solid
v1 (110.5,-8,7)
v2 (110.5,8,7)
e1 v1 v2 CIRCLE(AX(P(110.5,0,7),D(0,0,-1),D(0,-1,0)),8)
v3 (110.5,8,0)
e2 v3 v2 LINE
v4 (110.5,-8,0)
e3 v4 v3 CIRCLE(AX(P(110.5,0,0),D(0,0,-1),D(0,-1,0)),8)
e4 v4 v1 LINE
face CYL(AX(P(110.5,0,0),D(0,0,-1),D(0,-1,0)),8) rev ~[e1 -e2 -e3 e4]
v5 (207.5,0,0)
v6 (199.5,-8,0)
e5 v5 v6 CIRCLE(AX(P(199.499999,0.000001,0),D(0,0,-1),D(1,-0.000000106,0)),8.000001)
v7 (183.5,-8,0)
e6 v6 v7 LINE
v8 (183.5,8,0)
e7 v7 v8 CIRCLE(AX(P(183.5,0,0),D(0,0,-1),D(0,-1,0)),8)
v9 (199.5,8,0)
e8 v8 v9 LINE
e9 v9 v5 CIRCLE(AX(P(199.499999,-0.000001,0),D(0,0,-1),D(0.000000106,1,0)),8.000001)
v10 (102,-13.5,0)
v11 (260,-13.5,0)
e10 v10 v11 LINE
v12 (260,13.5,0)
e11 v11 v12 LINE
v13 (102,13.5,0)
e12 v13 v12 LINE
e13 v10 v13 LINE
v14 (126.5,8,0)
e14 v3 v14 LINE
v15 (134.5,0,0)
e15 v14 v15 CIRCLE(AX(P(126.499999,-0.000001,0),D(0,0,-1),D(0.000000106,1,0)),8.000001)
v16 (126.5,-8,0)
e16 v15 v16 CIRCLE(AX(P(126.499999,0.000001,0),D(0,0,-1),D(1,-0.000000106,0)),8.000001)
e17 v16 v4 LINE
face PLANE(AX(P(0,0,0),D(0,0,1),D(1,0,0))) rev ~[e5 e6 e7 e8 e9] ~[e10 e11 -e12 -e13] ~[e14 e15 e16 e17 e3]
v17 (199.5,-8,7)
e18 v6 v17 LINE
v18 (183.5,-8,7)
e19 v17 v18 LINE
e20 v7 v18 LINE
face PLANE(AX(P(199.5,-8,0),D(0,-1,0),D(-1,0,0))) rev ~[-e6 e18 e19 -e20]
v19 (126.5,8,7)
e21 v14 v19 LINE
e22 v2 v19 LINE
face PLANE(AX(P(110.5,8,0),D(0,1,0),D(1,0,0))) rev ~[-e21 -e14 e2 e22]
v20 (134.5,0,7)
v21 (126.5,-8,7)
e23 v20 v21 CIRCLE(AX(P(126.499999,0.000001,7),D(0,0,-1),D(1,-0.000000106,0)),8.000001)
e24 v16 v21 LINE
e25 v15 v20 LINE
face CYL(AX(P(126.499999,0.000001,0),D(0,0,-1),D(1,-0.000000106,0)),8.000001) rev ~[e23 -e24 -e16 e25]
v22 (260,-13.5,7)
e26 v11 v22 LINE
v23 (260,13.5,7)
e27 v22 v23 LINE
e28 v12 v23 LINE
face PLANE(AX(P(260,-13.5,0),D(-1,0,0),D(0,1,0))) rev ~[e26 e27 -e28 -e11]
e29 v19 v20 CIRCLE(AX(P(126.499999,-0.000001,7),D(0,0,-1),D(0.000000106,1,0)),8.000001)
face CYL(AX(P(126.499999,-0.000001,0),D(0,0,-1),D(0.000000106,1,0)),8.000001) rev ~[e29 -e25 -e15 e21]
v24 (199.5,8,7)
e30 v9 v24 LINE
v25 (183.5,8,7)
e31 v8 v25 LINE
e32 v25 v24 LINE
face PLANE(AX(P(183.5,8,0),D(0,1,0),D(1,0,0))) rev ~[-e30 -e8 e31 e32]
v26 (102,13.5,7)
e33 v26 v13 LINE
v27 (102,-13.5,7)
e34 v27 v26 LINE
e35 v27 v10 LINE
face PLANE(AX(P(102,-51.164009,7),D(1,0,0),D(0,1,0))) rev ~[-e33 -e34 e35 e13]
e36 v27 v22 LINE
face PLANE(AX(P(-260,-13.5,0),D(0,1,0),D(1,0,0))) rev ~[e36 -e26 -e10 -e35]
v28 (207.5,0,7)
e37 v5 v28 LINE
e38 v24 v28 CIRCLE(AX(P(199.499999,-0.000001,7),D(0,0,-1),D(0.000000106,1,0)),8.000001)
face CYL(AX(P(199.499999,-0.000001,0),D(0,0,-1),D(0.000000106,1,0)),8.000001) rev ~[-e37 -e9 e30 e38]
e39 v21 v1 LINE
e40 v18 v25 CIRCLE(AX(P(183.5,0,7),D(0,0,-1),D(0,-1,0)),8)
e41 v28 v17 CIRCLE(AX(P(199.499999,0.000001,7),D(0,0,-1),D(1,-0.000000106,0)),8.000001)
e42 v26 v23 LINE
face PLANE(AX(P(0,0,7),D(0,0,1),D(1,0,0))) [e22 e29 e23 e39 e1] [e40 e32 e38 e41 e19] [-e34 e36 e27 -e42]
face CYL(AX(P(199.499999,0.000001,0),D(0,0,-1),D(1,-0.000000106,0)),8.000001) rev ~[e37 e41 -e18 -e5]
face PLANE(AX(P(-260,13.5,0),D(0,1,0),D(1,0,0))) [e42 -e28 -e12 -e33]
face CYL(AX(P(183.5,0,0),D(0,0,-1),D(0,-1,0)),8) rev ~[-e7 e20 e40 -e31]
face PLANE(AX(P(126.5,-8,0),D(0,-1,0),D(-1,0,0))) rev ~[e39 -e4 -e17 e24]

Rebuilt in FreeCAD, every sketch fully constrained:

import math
import FreeCAD as App
import Part
import Sketcher
from FreeCAD import Vector
Q = App.Units.Quantity


def add_polygon(sketch, points):
    """Adds a closed chain of lines whose ends are joined by coincident constraints."""
    first, n = sketch.GeometryCount, len(points)
    for a, b in zip(points, points[1:] + points[:1]):
        sketch.addGeometry(Part.LineSegment(App.Vector(*a, 0), App.Vector(*b, 0)), False)
    for i in range(n):
        sketch.addConstraint(Sketcher.Constraint("Coincident", first + i, 2, first + (i + 1) % n, 1))

doc = App.newDocument("Part")
body = doc.addObject("PartDesign::Body", "Body")

# Sketch on XY plane
sketch1 = body.newObject("Sketcher::SketchObject", "Sketch")
sketch1.AttachmentSupport = (doc.getObject("XY_Plane"), [""])
sketch1.MapMode = "FlatFace"
add_polygon(sketch1, [(-260, 14), (-260, -14), (260, -14), (260, 14)])  # lines 0-3
sketch1.addGeometry(Part.LineSegment(Vector(-108, 8, 0), Vector(-92, 8, 0)), False)  # 4
sketch1.addGeometry(Part.ArcOfCircle(Part.Circle(Vector(-93, 0, 0), Vector(0, 0, 1), 8), math.radians(0), math.radians(90)), False)  # 5
sketch1.addGeometry(Part.ArcOfCircle(Part.Circle(Vector(-93, 0, 0), Vector(0, 0, 1), 8), math.radians(-90), math.radians(0)), False)  # 6
sketch1.addGeometry(Part.LineSegment(Vector(-92, -8, 0), Vector(-108, -8, 0)), False)  # 7
sketch1.addGeometry(Part.ArcOfCircle(Part.Circle(Vector(-108, 0, 0), Vector(0, 0, 1), 8), math.radians(90), math.radians(270)), False)  # 8
sketch1.addGeometry(Part.LineSegment(Vector(-36, 8, 0), Vector(-20, 8, 0)), False)  # 9
sketch1.addGeometry(Part.ArcOfCircle(Part.Circle(Vector(-20, 0, 0), Vector(0, 0, 1), 8), math.radians(0), math.radians(90)), False)  # 10
sketch1.addGeometry(Part.ArcOfCircle(Part.Circle(Vector(-20, 0, 0), Vector(0, 0, 1), 8), math.radians(-90), math.radians(0)), False)  # 11
sketch1.addGeometry(Part.LineSegment(Vector(-20, -8, 0), Vector(-36, -8, 0)), False)  # 12
sketch1.addGeometry(Part.ArcOfCircle(Part.Circle(Vector(-36, 0, 0), Vector(0, 0, 1), 8), math.radians(90), math.radians(270)), False)  # 13
sketch1.addGeometry(Part.LineSegment(Vector(38, 8, 0), Vector(54, 8, 0)), False)  # 14
sketch1.addGeometry(Part.ArcOfCircle(Part.Circle(Vector(53, 0, 0), Vector(0, 0, 1), 8), math.radians(0), math.radians(90)), False)  # 15
sketch1.addGeometry(Part.ArcOfCircle(Part.Circle(Vector(53, 0, 0), Vector(0, 0, 1), 8), math.radians(-90), math.radians(0)), False)  # 16
sketch1.addGeometry(Part.LineSegment(Vector(54, -8, 0), Vector(38, -8, 0)), False)  # 17
sketch1.addGeometry(Part.ArcOfCircle(Part.Circle(Vector(38, 0, 0), Vector(0, 0, 1), 8), math.radians(90), math.radians(270)), False)  # 18
sketch1.addGeometry(Part.LineSegment(Vector(110, 8, 0), Vector(126, 8, 0)), False)  # 19
sketch1.addGeometry(Part.ArcOfCircle(Part.Circle(Vector(126, 0, 0), Vector(0, 0, 1), 8), math.radians(0), math.radians(90)), False)  # 20
sketch1.addGeometry(Part.ArcOfCircle(Part.Circle(Vector(126, 0, 0), Vector(0, 0, 1), 8), math.radians(-90), math.radians(0)), False)  # 21
sketch1.addGeometry(Part.LineSegment(Vector(126, -8, 0), Vector(110, -8, 0)), False)  # 22
sketch1.addGeometry(Part.ArcOfCircle(Part.Circle(Vector(110, 0, 0), Vector(0, 0, 1), 8), math.radians(90), math.radians(270)), False)  # 23
sketch1.addGeometry(Part.LineSegment(Vector(184, 8, 0), Vector(200, 8, 0)), False)  # 24
sketch1.addGeometry(Part.ArcOfCircle(Part.Circle(Vector(199, 0, 0), Vector(0, 0, 1), 8), math.radians(0), math.radians(90)), False)  # 25
sketch1.addGeometry(Part.ArcOfCircle(Part.Circle(Vector(199, 0, 0), Vector(0, 0, 1), 8), math.radians(-90), math.radians(0)), False)  # 26
sketch1.addGeometry(Part.LineSegment(Vector(200, -8, 0), Vector(184, -8, 0)), False)  # 27
sketch1.addGeometry(Part.ArcOfCircle(Part.Circle(Vector(184, 0, 0), Vector(0, 0, 1), 8), math.radians(90), math.radians(270)), False)  # 28
sketch1.addConstraint(Sketcher.Constraint("Tangent", 4, 2, 5, 2))
sketch1.addConstraint(Sketcher.Constraint("Tangent", 5, 1, 6, 2))
sketch1.addConstraint(Sketcher.Constraint("Tangent", 6, 1, 7, 1))
sketch1.addConstraint(Sketcher.Constraint("Tangent", 7, 2, 8, 2))
sketch1.addConstraint(Sketcher.Constraint("Tangent", 8, 1, 4, 1))
sketch1.addConstraint(Sketcher.Constraint("Tangent", 9, 2, 10, 2))
sketch1.addConstraint(Sketcher.Constraint("Tangent", 10, 1, 11, 2))
sketch1.addConstraint(Sketcher.Constraint("Tangent", 11, 1, 12, 1))
sketch1.addConstraint(Sketcher.Constraint("Tangent", 12, 2, 13, 2))
sketch1.addConstraint(Sketcher.Constraint("Tangent", 13, 1, 9, 1))
sketch1.addConstraint(Sketcher.Constraint("Tangent", 14, 2, 15, 2))
sketch1.addConstraint(Sketcher.Constraint("Tangent", 15, 1, 16, 2))
sketch1.addConstraint(Sketcher.Constraint("Tangent", 16, 1, 17, 1))
sketch1.addConstraint(Sketcher.Constraint("Tangent", 17, 2, 18, 2))
sketch1.addConstraint(Sketcher.Constraint("Tangent", 18, 1, 14, 1))
sketch1.addConstraint(Sketcher.Constraint("Tangent", 19, 2, 20, 2))
sketch1.addConstraint(Sketcher.Constraint("Tangent", 20, 1, 21, 2))
sketch1.addConstraint(Sketcher.Constraint("Tangent", 21, 1, 22, 1))
sketch1.addConstraint(Sketcher.Constraint("Tangent", 22, 2, 23, 2))
sketch1.addConstraint(Sketcher.Constraint("Tangent", 23, 1, 19, 1))
sketch1.addConstraint(Sketcher.Constraint("Tangent", 24, 2, 25, 2))
sketch1.addConstraint(Sketcher.Constraint("Tangent", 25, 1, 26, 2))
sketch1.addConstraint(Sketcher.Constraint("Tangent", 26, 1, 27, 1))
sketch1.addConstraint(Sketcher.Constraint("Tangent", 27, 2, 28, 2))
sketch1.addConstraint(Sketcher.Constraint("Tangent", 28, 1, 24, 1))
sketch1.addConstraint(Sketcher.Constraint("Vertical", 0))
sketch1.addConstraint(Sketcher.Constraint("Horizontal", 1))
sketch1.addConstraint(Sketcher.Constraint("Vertical", 2))
sketch1.addConstraint(Sketcher.Constraint("Horizontal", 3))
sketch1.addConstraint(Sketcher.Constraint("Horizontal", 4))
sketch1.addConstraint(Sketcher.Constraint("Horizontal", 7))
sketch1.addConstraint(Sketcher.Constraint("Horizontal", 9))
sketch1.addConstraint(Sketcher.Constraint("Horizontal", 12))
sketch1.addConstraint(Sketcher.Constraint("Horizontal", 14))
sketch1.addConstraint(Sketcher.Constraint("Horizontal", 17))
sketch1.addConstraint(Sketcher.Constraint("Horizontal", 19))
sketch1.addConstraint(Sketcher.Constraint("Horizontal", 22))
sketch1.addConstraint(Sketcher.Constraint("Horizontal", 24))
sketch1.addConstraint(Sketcher.Constraint("Horizontal", 27))
sketch1.addConstraint(Sketcher.Constraint("Equal", 5, 6))
sketch1.addConstraint(Sketcher.Constraint("Equal", 8, 10))
sketch1.addConstraint(Sketcher.Constraint("Equal", 10, 11))
sketch1.addConstraint(Sketcher.Constraint("Equal", 13, 15))
sketch1.addConstraint(Sketcher.Constraint("Equal", 15, 16))
sketch1.addConstraint(Sketcher.Constraint("Equal", 18, 20))
sketch1.addConstraint(Sketcher.Constraint("Equal", 20, 21))
sketch1.addConstraint(Sketcher.Constraint("Equal", 23, 25))
sketch1.addConstraint(Sketcher.Constraint("Equal", 25, 26))
sketch1.addConstraint(Sketcher.Constraint("Symmetric", 0, 2, 2, 2, -1, 1))
sketch1.addConstraint(Sketcher.Constraint("PointOnObject", 5, 3, -1))
sketch1.addConstraint(Sketcher.Constraint("PointOnObject", 10, 3, -1))
sketch1.addConstraint(Sketcher.Constraint("PointOnObject", 15, 3, -1))
sketch1.addConstraint(Sketcher.Constraint("PointOnObject", 20, 3, -1))
sketch1.addConstraint(Sketcher.Constraint("PointOnObject", 25, 3, -1))
sketch1.addConstraint(Sketcher.Constraint("PointOnObject", 5, 1, -1))
sketch1.addConstraint(Sketcher.Constraint("PointOnObject", 10, 1, -1))
sketch1.addConstraint(Sketcher.Constraint("PointOnObject", 15, 1, -1))
sketch1.addConstraint(Sketcher.Constraint("PointOnObject", 20, 1, -1))
sketch1.addConstraint(Sketcher.Constraint("PointOnObject", 25, 1, -1))
sketch1.addConstraint(Sketcher.Constraint("Equal", 7, 9))
sketch1.addConstraint(Sketcher.Constraint("Equal", 12, 14))
sketch1.addConstraint(Sketcher.Constraint("Equal", 17, 19))
sketch1.addConstraint(Sketcher.Constraint("Equal", 22, 24))
sketch1.addConstraint(Sketcher.Constraint("Radius", 5, Q("8.000001 mm")))
sketch1.addConstraint(Sketcher.Constraint("DistanceX", 1, 1, 1, 2, Q("520 mm")))
sketch1.addConstraint(Sketcher.Constraint("DistanceX", 4, 1, 4, 2, Q("16 mm")))
sketch1.addConstraint(Sketcher.Constraint("DistanceY", 0, 2, 0, 1, Q("27 mm")))
sketch1.addConstraint(Sketcher.Constraint("DistanceX", 5, 3, 10, 3, Q("73 mm")))
sketch1.addConstraint(Sketcher.Constraint("DistanceX", 10, 3, 15, 3, Q("73 mm")))
sketch1.addConstraint(Sketcher.Constraint("DistanceX", 15, 3, 20, 3, Q("73 mm")))
sketch1.addConstraint(Sketcher.Constraint("DistanceX", 20, 3, 25, 3, Q("73 mm")))
sketch1.addConstraint(Sketcher.Constraint("DistanceX", 5, 3, -1, 1, Q("92.500001 mm")))
pad1 = body.newObject("PartDesign::Pad", "Pad")
pad1.Profile = sketch1
pad1.Length = 7

# Sketch on XY plane
sketch2 = body.newObject("Sketcher::SketchObject", "Sketch001")
sketch2.AttachmentSupport = (doc.getObject("XY_Plane"), [""])
sketch2.MapMode = "FlatFace"
sketch2.AttachmentOffset = App.Placement(Vector(0, 0, 7), App.Rotation())
add_polygon(sketch2, [(102, -51), (102, 45), (-264, 45), (-264, -51)])  # lines 0-3
sketch2.addConstraint(Sketcher.Constraint("Vertical", 0))
sketch2.addConstraint(Sketcher.Constraint("Horizontal", 1))
sketch2.addConstraint(Sketcher.Constraint("Vertical", 2))
sketch2.addConstraint(Sketcher.Constraint("Horizontal", 3))
sketch2.addConstraint(Sketcher.Constraint("DistanceX", 1, 2, 1, 1, Q("366 mm")))
sketch2.addConstraint(Sketcher.Constraint("DistanceX", -1, 1, 0, 2, Q("102 mm")))
sketch2.addConstraint(Sketcher.Constraint("DistanceY", 0, 1, 0, 2, Q("96.179498 mm")))
sketch2.addConstraint(Sketcher.Constraint("DistanceY", -1, 1, 0, 2, Q("45.015489 mm")))
pocket1 = body.newObject("PartDesign::Pocket", "Pocket")
pocket1.Profile = sketch2
pocket1.Length = 25

doc.recompute()
